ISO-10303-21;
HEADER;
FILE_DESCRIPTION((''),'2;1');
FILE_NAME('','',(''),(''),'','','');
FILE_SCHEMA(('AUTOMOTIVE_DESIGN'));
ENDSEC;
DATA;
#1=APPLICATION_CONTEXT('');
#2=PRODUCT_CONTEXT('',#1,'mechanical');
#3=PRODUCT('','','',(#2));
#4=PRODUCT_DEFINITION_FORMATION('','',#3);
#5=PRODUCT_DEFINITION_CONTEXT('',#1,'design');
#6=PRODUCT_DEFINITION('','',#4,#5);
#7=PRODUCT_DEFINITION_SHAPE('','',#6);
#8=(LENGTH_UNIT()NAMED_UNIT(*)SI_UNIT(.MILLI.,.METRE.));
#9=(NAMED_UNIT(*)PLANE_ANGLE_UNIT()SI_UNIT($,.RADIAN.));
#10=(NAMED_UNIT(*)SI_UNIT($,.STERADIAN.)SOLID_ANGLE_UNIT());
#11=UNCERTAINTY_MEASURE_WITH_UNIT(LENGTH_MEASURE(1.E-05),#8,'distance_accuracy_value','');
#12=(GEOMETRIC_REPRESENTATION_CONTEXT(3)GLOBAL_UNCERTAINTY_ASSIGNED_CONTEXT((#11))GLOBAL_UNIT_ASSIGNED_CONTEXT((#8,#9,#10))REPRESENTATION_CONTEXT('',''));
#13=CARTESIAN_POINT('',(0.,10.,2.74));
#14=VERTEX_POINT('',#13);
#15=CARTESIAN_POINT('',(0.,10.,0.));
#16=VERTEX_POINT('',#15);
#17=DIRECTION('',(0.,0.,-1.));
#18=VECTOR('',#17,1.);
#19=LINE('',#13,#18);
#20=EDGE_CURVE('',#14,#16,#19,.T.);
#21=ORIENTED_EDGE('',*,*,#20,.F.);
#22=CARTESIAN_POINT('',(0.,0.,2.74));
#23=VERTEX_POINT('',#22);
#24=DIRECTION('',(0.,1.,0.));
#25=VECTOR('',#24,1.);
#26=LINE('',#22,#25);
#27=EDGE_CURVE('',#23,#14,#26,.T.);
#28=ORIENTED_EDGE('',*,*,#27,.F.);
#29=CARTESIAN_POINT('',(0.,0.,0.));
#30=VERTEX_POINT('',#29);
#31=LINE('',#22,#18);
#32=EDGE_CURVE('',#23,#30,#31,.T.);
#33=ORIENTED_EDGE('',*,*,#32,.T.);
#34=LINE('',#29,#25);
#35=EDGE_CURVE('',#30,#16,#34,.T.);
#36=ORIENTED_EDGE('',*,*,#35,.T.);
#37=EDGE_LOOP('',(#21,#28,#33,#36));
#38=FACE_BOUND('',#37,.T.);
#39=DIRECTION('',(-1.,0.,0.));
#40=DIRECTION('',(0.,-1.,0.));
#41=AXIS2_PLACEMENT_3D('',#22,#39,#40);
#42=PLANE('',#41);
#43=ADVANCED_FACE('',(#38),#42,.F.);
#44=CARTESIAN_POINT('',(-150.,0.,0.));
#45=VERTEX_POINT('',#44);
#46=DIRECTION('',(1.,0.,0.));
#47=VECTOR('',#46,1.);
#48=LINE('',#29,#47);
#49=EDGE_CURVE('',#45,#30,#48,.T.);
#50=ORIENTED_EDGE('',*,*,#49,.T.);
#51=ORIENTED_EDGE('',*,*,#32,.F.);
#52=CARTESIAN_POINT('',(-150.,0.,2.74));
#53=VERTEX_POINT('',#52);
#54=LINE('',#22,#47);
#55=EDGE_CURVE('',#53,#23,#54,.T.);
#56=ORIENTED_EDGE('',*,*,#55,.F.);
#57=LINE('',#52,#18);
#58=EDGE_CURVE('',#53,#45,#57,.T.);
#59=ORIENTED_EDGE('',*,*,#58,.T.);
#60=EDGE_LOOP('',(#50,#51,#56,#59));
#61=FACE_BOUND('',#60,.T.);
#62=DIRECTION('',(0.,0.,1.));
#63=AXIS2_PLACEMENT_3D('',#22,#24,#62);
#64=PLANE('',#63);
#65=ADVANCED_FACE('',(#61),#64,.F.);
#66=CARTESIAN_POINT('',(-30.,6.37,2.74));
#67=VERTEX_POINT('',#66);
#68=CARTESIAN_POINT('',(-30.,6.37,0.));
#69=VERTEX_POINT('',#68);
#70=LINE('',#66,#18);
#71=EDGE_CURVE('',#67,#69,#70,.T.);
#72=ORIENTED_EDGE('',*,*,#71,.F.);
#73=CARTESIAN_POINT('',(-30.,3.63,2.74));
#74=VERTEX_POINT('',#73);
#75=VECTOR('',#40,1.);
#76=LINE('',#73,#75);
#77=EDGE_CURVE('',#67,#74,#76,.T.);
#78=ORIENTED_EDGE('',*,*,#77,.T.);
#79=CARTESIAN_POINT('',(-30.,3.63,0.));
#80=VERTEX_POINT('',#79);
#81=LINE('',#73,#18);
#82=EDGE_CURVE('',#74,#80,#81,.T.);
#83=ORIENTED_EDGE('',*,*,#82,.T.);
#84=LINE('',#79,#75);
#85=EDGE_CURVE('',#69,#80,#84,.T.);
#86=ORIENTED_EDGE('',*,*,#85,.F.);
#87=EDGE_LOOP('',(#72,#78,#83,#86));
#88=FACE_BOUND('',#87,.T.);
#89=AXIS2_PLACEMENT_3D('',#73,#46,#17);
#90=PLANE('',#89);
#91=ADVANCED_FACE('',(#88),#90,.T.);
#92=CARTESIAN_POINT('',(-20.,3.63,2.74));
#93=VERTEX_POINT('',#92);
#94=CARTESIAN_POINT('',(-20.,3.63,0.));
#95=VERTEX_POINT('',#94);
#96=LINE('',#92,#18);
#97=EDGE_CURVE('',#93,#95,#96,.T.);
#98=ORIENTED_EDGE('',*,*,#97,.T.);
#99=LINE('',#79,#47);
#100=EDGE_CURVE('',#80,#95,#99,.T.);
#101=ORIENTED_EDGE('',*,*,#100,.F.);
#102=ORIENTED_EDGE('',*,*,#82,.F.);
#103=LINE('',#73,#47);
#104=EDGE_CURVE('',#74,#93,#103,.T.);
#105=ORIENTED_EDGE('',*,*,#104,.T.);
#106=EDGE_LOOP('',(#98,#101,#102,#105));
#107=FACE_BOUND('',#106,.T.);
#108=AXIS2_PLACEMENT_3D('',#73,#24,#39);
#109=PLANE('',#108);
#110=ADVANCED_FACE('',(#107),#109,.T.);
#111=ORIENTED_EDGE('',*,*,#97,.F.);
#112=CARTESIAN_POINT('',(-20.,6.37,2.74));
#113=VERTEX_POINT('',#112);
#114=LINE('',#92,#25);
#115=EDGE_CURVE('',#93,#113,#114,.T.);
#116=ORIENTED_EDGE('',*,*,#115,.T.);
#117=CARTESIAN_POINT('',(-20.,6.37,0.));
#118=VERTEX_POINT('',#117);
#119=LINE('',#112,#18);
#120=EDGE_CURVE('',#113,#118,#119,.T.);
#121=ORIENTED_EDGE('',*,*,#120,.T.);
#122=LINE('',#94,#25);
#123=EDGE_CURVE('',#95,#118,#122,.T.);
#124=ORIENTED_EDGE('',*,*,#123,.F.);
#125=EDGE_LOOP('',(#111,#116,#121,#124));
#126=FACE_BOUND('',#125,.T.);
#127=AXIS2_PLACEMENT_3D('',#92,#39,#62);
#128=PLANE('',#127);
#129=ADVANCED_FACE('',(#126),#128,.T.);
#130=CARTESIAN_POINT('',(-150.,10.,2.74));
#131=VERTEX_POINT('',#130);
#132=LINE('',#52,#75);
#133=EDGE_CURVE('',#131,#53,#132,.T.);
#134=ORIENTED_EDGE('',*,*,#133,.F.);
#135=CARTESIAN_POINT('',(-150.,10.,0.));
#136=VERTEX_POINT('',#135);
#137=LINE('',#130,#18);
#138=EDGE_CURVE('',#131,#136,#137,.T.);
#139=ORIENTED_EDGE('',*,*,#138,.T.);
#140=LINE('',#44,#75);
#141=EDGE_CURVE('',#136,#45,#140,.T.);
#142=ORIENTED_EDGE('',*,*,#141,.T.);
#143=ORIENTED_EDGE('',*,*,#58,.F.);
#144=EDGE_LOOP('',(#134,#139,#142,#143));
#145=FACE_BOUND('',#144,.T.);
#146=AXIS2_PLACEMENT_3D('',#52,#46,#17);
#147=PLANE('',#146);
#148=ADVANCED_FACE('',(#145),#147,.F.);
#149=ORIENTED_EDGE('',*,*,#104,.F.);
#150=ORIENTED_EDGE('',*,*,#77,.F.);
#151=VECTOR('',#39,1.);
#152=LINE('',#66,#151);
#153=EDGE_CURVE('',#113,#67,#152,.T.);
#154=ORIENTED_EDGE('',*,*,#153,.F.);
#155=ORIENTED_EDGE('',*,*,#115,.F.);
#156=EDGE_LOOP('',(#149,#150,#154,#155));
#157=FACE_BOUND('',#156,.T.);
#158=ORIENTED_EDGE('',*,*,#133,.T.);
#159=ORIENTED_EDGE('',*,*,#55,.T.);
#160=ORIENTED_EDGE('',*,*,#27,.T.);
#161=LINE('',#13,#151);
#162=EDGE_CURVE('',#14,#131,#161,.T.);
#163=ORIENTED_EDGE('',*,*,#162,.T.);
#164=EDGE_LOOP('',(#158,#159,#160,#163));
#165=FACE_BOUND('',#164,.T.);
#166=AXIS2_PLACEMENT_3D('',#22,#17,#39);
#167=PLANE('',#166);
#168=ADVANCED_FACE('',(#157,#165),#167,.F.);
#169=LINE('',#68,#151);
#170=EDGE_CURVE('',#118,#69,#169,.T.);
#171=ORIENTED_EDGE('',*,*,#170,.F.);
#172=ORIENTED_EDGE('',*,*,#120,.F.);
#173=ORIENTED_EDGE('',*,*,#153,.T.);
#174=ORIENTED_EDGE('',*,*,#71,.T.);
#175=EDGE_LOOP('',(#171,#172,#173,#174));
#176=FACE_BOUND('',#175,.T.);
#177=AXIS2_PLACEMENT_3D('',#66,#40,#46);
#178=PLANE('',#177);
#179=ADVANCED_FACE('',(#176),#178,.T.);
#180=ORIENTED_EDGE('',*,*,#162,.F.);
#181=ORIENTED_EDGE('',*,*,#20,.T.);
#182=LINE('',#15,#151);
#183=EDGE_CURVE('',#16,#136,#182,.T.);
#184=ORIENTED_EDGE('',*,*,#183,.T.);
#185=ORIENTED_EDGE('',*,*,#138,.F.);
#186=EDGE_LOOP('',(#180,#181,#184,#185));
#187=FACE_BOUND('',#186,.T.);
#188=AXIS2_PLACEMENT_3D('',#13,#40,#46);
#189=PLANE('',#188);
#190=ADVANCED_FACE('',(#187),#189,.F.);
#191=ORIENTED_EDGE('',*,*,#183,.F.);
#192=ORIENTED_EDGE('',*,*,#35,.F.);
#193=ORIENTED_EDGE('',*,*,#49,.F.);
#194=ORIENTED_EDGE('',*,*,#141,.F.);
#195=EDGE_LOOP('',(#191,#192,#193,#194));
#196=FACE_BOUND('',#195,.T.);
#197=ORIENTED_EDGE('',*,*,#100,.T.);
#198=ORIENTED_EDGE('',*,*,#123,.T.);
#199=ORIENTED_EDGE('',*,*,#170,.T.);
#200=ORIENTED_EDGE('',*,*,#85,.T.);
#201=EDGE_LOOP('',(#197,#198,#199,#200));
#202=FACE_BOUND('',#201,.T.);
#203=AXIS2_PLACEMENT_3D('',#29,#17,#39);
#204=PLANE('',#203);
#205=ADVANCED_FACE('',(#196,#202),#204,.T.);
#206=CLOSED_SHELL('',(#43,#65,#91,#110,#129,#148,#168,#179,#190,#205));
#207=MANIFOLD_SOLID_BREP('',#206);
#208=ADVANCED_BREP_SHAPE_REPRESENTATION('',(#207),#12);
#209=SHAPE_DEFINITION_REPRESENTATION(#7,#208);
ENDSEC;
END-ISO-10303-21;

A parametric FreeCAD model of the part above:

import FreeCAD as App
import Part
import Sketcher

V = App.Vector
Q = App.Units.Quantity


def add_polygon(sketch, points):
    """Adds a closed chain of lines whose ends are joined by coincident constraints."""
    first, n = sketch.GeometryCount, len(points)
    for a, b in zip(points, points[1:] + points[:1]):
        sketch.addGeometry(Part.LineSegment(App.Vector(*a, 0), App.Vector(*b, 0)), False)
    for i in range(n):
        sketch.addConstraint(Sketcher.Constraint("Coincident", first + i, 2, first + (i + 1) % n, 1))

doc = App.newDocument("Part")
body = doc.addObject("PartDesign::Body", "Body")

sketch1 = doc.addObject("Sketcher::SketchObject", "Sketch")
body.addObject(sketch1)
sketch1.AttachmentSupport = (doc.XY_Plane, [""])
sketch1.MapMode = "FlatFace"
add_polygon(sketch1, [(-150, 0), (0, 0), (0, 10), (-150, 10)])
add_polygon(sketch1, [(-20, 6.37), (-20, 3.63), (-30, 3.63), (-30, 6.37)])
sketch1.addConstraint(Sketcher.Constraint("Horizontal", 0))
sketch1.addConstraint(Sketcher.Constraint("Vertical", 1))
sketch1.addConstraint(Sketcher.Constraint("Horizontal", 2))
sketch1.addConstraint(Sketcher.Constraint("Vertical", 3))
sketch1.addConstraint(Sketcher.Constraint("Vertical", 4))
sketch1.addConstraint(Sketcher.Constraint("Horizontal", 5))
sketch1.addConstraint(Sketcher.Constraint("Vertical", 6))
sketch1.addConstraint(Sketcher.Constraint("Horizontal", 7))
sketch1.addConstraint(Sketcher.Constraint("Coincident", 0, 2, -1, 1))
sketch1.addConstraint(Sketcher.Constraint("Equal", 7, 1))
sketch1.addConstraint(Sketcher.Constraint("DistanceX", 0, 1, 0, 2, Q("150 mm")))
sketch1.addConstraint(Sketcher.Constraint("DistanceX", 5, 2, 5, 1, Q("10 mm")))
sketch1.addConstraint(Sketcher.Constraint("DistanceX", 4, 2, -1, 1, Q("20 mm")))
sketch1.addConstraint(Sketcher.Constraint("DistanceY", 4, 2, 4, 1, Q("2.74 mm")))
sketch1.addConstraint(Sketcher.Constraint("DistanceY", -1, 1, 4, 2, Q("3.63 mm")))
pad1 = doc.addObject("PartDesign::Pad", "Pad")
body.addObject(pad1)
pad1.Profile = sketch1
pad1.Length = 2.74

doc.recompute()
